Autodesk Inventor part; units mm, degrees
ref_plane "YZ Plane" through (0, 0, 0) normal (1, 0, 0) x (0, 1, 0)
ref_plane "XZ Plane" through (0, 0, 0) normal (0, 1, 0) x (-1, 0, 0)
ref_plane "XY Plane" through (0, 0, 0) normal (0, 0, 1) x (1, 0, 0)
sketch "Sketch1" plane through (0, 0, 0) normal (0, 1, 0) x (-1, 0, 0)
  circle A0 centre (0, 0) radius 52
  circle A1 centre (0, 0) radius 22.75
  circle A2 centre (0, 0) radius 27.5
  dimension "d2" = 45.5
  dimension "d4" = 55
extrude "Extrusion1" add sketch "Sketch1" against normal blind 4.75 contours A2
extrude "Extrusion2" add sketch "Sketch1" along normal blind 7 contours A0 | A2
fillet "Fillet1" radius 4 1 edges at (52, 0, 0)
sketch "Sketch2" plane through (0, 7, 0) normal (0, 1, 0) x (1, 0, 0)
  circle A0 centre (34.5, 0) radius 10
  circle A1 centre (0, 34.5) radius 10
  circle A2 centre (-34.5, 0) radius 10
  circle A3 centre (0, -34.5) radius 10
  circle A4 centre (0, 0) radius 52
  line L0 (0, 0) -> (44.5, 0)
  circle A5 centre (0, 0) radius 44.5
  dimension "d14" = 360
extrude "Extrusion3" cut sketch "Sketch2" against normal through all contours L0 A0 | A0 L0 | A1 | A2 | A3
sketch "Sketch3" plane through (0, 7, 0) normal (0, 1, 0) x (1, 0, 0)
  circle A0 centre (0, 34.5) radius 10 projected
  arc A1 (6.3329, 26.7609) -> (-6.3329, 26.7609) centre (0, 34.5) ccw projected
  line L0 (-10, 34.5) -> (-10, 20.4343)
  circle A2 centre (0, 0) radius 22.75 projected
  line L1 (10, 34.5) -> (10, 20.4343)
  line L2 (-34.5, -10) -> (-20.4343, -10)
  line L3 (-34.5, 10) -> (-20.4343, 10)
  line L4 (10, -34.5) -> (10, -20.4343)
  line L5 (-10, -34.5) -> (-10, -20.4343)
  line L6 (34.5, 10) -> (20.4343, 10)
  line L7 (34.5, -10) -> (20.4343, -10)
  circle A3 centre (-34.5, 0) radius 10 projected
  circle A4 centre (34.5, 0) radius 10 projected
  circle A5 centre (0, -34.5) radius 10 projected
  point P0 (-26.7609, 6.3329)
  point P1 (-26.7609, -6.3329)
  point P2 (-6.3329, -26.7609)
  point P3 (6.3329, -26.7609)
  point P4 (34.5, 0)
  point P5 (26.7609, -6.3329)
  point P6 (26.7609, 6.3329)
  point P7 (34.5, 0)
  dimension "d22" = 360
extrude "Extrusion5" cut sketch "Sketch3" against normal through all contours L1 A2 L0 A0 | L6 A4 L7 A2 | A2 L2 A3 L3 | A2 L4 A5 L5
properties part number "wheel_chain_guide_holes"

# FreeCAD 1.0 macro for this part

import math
import FreeCAD as App
import Part
import Sketcher
Q = App.Units.Quantity


def edges_at(feature, points):
    """Names of the edges that pass closest to the given points."""
    edges = feature.Shape.Edges
    near = lambda p: min(range(len(edges)), key=lambda i: edges[i].distToShape(Part.Vertex(*p))[0])
    return sorted({f"Edge{near(p) + 1}" for p in points})

doc = App.newDocument("Part")
body = doc.addObject("PartDesign::Body", "Body")

sketch1 = body.newObject("Sketcher::SketchObject", "Sketch")
sketch1.AttachmentSupport = (doc.getObject("XZ_Plane"), [""])
sketch1.MapMode = "FlatFace"
sketch1.addGeometry([
    Part.Circle(App.Vector(0, 0, 0), App.Vector(0, 0, 1), 28),
    Part.Circle(App.Vector(0, 0, 0), App.Vector(0, 0, 1), 23),
], False)
sketch1.addConstraint([
    Sketcher.Constraint("Coincident", 0, 3, -1, 1),
    Sketcher.Constraint("Coincident", 1, 3, -1, 1),
    Sketcher.Constraint("Diameter", 0, Q("55 mm")),
    Sketcher.Constraint("Diameter", 1, Q("45.5 mm")),
])
pad1 = body.newObject("PartDesign::Pad", "Pad")
pad1.Profile = sketch1
pad1.Length = 4.75

sketch2 = body.newObject("Sketcher::SketchObject", "Sketch001")
sketch2.AttachmentSupport = (doc.getObject("XZ_Plane"), [""])
sketch2.MapMode = "FlatFace"
sketch2.addGeometry([
    Part.Circle(App.Vector(0, 0, 0), App.Vector(0, 0, 1), 52),
    Part.Circle(App.Vector(0, 0, 0), App.Vector(0, 0, 1), 23),
], False)
sketch2.addConstraint([
    Sketcher.Constraint("Coincident", 0, 3, -1, 1),
    Sketcher.Constraint("Coincident", 1, 3, -1, 1),
    Sketcher.Constraint("Diameter", 1, Q("45.5 mm")),
    Sketcher.Constraint("Diameter", 0, Q("104 mm")),
])
pad2 = body.newObject("PartDesign::Pad", "Pad001")
pad2.Profile = sketch2
pad2.Length = 7
pad2.Reversed = True
doc.recompute()

fillet = body.newObject("PartDesign::Fillet", "Fillet")
fillet.Base = (pad2, edges_at(pad2, [(52, 0, 0)]))
fillet.Radius = 4

sketch3 = body.newObject("Sketcher::SketchObject", "Sketch002")
sketch3.AttachmentSupport = (doc.getObject("XZ_Plane"), [""])
sketch3.MapMode = "FlatFace"
sketch3.AttachmentOffset = App.Placement(App.Vector(0, 0, -7), App.Rotation())
sketch3.addGeometry([
    Part.Circle(App.Vector(34, 0, 0), App.Vector(0, 0, 1), 10),
    Part.Circle(App.Vector(0, -34, 0), App.Vector(0, 0, 1), 10),
    Part.Circle(App.Vector(-34, 0, 0), App.Vector(0, 0, 1), 10),
    Part.Circle(App.Vector(0, 34, 0), App.Vector(0, 0, 1), 10),
], False)
sketch3.addConstraint([
    Sketcher.Constraint("Equal", 0, 1),
    Sketcher.Constraint("Equal", 1, 2),
    Sketcher.Constraint("Equal", 2, 3),
    Sketcher.Constraint("Symmetric", 0, 3, 2, 3, -1, 1),
    Sketcher.Constraint("Symmetric", 1, 3, 3, 3, -1, 1),
    Sketcher.Constraint("PointOnObject", 0, 3, -1),
    Sketcher.Constraint("PointOnObject", 1, 3, -2),
    Sketcher.Constraint("Diameter", 0, Q("20 mm")),
    Sketcher.Constraint("DistanceX", 2, 3, 0, 3, Q("69 mm")),
    Sketcher.Constraint("DistanceY", 1, 3, 3, 3, Q("69 mm")),
])
pocket1 = body.newObject("PartDesign::Pocket", "Pocket")
pocket1.Profile = sketch3
pocket1.Type = "ThroughAll"
pocket1.Reversed = True

sketch4 = body.newObject("Sketcher::SketchObject", "Sketch003")
sketch4.AttachmentSupport = (doc.getObject("XZ_Plane"), [""])
sketch4.MapMode = "FlatFace"
sketch4.AttachmentOffset = App.Placement(App.Vector(0, 0, -7), App.Rotation())
sketch4.addGeometry([
    Part.LineSegment(App.Vector(10, -20, 0), App.Vector(10, -34, 0)),
    Part.ArcOfCircle(Part.Circle(App.Vector(0, -34, 0), App.Vector(0, 0, 1), 10), math.radians(0), math.radians(180)),
    Part.LineSegment(App.Vector(-10, -34, 0), App.Vector(-10, -20, 0)),
    Part.ArcOfCircle(Part.Circle(App.Vector(0, 0, 0), App.Vector(0, 0, 1), 23), math.radians(-116), math.radians(-64)),
    Part.LineSegment(App.Vector(34, -10, 0), App.Vector(20, -10, 0)),
    Part.ArcOfCircle(Part.Circle(App.Vector(0, 0, 0), App.Vector(0, 0, 1), 23), math.radians(-26), math.radians(26)),
    Part.LineSegment(App.Vector(20, 10, 0), App.Vector(34, 10, 0)),
    Part.ArcOfCircle(Part.Circle(App.Vector(34, 0, 0), App.Vector(0, 0, 1), 10), math.radians(90), math.radians(270)),
    Part.ArcOfCircle(Part.Circle(App.Vector(0, 0, 0), App.Vector(0, 0, 1), 23), math.radians(154), math.radians(206)),
    Part.LineSegment(App.Vector(-20, -10, 0), App.Vector(-34, -10, 0)),
    Part.ArcOfCircle(Part.Circle(App.Vector(-34, 0, 0), App.Vector(0, 0, 1), 10), math.radians(-90), math.radians(90)),
    Part.LineSegment(App.Vector(-34, 10, 0), App.Vector(-20, 10, 0)),
    Part.ArcOfCircle(Part.Circle(App.Vector(0, 0, 0), App.Vector(0, 0, 1), 23), math.radians(64), math.radians(116)),
    Part.LineSegment(App.Vector(-10, 20, 0), App.Vector(-10, 34, 0)),
    Part.ArcOfCircle(Part.Circle(App.Vector(0, 34, 0), App.Vector(0, 0, 1), 10), math.radians(180), math.radians(360)),
    Part.LineSegment(App.Vector(10, 34, 0), App.Vector(10, 20, 0)),
], False)
sketch4.addConstraint([
    Sketcher.Constraint("Tangent", 0, 2, 1, 1),
    Sketcher.Constraint("Tangent", 1, 2, 2, 1),
    Sketcher.Constraint("Coincident", 2, 2, 3, 1),
    Sketcher.Constraint("Coincident", 3, 2, 0, 1),
    Sketcher.Constraint("Coincident", 4, 2, 5, 1),
    Sketcher.Constraint("Coincident", 5, 2, 6, 1),
    Sketcher.Constraint("Tangent", 6, 2, 7, 1),
    Sketcher.Constraint("Tangent", 7, 2, 4, 1),
    Sketcher.Constraint("Coincident", 8, 2, 9, 1),
    Sketcher.Constraint("Tangent", 9, 2, 10, 1),
    Sketcher.Constraint("Tangent", 10, 2, 11, 1),
    Sketcher.Constraint("Coincident", 11, 2, 8, 1),
    Sketcher.Constraint("Coincident", 12, 2, 13, 1),
    Sketcher.Constraint("Tangent", 13, 2, 14, 1),
    Sketcher.Constraint("Tangent", 14, 2, 15, 1),
    Sketcher.Constraint("Coincident", 15, 2, 12, 1),
    Sketcher.Constraint("Vertical", 0),
    Sketcher.Constraint("Vertical", 2),
    Sketcher.Constraint("Horizontal", 4),
    Sketcher.Constraint("Horizontal", 6),
    Sketcher.Constraint("Horizontal", 9),
    Sketcher.Constraint("Horizontal", 11),
    Sketcher.Constraint("Vertical", 13),
    Sketcher.Constraint("Vertical", 15),
    Sketcher.Constraint("Coincident", 3, 3, -1, 1),
    Sketcher.Constraint("Coincident", 5, 3, -1, 1),
    Sketcher.Constraint("Coincident", 8, 3, -1, 1),
    Sketcher.Constraint("Coincident", 12, 3, -1, 1),
    Sketcher.Constraint("Equal", 3, 5),
    Sketcher.Constraint("Equal", 1, 7),
    Sketcher.Constraint("Equal", 5, 8),
    Sketcher.Constraint("Equal", 7, 10),
    Sketcher.Constraint("Equal", 8, 12),
    Sketcher.Constraint("Equal", 10, 14),
    Sketcher.Constraint("Symmetric", 7, 3, 10, 3, -1, 1),
    Sketcher.Constraint("Symmetric", 1, 3, 14, 3, -1, 1),
    Sketcher.Constraint("PointOnObject", 1, 3, -2),
    Sketcher.Constraint("PointOnObject", 7, 3, -1),
    Sketcher.Constraint("Equal", 11, 0),
    Sketcher.Constraint("Radius", 1, Q("10 mm")),
    Sketcher.Constraint("Radius", 3, Q("22.75 mm")),
    Sketcher.Constraint("DistanceX", 10, 3, 7, 3, Q("69 mm")),
])
pocket2 = body.newObject("PartDesign::Pocket", "Pocket001")
pocket2.Profile = sketch4
pocket2.Type = "ThroughAll"
pocket2.Reversed = True

doc.recompute()
